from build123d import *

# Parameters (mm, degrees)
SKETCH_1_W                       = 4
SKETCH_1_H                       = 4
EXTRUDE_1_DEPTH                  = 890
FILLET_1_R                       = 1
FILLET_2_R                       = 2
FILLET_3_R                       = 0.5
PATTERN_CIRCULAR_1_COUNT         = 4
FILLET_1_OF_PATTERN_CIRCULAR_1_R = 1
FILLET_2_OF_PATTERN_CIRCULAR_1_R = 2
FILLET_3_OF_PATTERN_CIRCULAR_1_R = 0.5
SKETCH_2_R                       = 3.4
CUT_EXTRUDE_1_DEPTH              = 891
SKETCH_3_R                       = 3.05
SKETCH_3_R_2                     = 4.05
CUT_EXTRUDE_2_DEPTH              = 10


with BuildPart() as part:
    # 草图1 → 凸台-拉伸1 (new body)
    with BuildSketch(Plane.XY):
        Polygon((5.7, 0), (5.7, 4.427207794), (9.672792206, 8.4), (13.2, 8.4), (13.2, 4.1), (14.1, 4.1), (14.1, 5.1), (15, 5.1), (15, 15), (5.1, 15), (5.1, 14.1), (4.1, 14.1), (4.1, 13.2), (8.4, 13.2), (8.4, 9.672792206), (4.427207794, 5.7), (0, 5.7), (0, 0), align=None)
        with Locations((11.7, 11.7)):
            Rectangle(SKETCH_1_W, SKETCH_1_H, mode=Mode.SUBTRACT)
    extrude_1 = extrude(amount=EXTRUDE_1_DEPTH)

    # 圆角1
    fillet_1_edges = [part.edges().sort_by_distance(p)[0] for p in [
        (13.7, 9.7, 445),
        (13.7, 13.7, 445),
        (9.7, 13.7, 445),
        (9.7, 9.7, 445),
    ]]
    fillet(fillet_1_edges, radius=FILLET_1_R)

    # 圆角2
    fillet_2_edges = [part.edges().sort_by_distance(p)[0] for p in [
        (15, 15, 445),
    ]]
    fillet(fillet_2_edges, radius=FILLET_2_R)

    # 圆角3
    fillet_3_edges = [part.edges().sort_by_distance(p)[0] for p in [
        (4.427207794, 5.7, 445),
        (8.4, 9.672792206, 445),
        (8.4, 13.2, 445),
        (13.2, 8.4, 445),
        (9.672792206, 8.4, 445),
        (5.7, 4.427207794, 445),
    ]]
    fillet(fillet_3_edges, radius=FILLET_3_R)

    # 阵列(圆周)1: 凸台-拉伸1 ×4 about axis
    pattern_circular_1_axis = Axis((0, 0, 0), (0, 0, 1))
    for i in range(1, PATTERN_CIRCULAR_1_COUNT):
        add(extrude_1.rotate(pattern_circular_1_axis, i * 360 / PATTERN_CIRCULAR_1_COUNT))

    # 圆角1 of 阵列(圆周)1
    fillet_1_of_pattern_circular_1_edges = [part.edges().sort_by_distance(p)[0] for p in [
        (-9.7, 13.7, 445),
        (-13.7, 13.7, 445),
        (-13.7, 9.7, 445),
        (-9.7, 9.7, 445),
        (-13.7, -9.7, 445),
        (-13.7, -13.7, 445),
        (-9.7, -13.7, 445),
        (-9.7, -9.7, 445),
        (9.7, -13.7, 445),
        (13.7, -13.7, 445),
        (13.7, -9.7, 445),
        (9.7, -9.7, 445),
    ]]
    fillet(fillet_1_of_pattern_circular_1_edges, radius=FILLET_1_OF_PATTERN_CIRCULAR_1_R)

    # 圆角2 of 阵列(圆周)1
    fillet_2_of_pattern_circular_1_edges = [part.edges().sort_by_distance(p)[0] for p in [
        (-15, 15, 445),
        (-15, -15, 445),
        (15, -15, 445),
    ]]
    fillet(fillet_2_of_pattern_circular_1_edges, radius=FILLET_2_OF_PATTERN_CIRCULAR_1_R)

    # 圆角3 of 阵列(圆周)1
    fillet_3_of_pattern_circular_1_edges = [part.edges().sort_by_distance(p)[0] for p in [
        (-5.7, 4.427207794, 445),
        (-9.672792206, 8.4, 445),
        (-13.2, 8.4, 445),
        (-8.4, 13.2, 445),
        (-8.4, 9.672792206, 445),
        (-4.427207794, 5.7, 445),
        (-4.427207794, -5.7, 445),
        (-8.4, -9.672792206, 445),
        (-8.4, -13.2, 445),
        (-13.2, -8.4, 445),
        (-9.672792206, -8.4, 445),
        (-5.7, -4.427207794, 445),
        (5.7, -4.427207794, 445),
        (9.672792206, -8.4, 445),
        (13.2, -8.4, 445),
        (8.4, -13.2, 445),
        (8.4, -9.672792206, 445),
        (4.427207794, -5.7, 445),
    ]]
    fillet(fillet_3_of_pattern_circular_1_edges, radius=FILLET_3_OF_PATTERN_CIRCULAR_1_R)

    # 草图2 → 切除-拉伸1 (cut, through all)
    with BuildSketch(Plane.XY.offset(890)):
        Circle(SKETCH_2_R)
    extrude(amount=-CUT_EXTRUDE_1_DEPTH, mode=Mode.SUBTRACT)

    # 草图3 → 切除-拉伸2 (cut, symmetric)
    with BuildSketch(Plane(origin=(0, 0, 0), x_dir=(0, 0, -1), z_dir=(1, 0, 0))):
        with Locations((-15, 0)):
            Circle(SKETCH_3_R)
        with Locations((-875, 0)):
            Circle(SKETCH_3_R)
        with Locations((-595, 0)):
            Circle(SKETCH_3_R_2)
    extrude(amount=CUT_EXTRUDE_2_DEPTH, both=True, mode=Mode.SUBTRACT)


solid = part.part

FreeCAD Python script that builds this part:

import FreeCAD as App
import Part
import Sketcher

V = App.Vector
Q = App.Units.Quantity


def edges_at(feature, points):
    """Names of the edges that pass closest to the given points."""
    edges = feature.Shape.Edges
    near = lambda p: min(range(len(edges)), key=lambda i: edges[i].distToShape(Part.Vertex(*p))[0])
    return sorted({f"Edge{near(p) + 1}" for p in points})


def add_polygon(sketch, points):
    """Adds a closed chain of lines whose ends are joined by coincident constraints."""
    first, n = sketch.GeometryCount, len(points)
    for a, b in zip(points, points[1:] + points[:1]):
        sketch.addGeometry(Part.LineSegment(App.Vector(*a, 0), App.Vector(*b, 0)), False)
    for i in range(n):
        sketch.addConstraint(Sketcher.Constraint("Coincident", first + i, 2, first + (i + 1) % n, 1))

doc = App.newDocument("Part")
body = doc.addObject("PartDesign::Body", "Body")

sketch1 = body.newObject("Sketcher::SketchObject", "Sketch")
sketch1.AttachmentSupport = (doc.getObject("XY_Plane"), [""])
sketch1.MapMode = "FlatFace"
add_polygon(sketch1, [(5.7, 0), (5.7, 4.427208), (9.672792, 8.4), (13.2, 8.4), (13.2, 4.1), (14.1, 4.1), (14.1, 5.1), (15, 5.1), (15, 15), (5.1, 15), (5.1, 14.1), (4.1, 14.1), (4.1, 13.2), (8.4, 13.2), (8.4, 9.672792), (4.427208, 5.7), (0, 5.7), (0, 0)])
add_polygon(sketch1, [(13.7, 9.7), (9.7, 9.7), (9.7, 13.7), (13.7, 13.7)])
sketch1.addConstraint(Sketcher.Constraint("Vertical", 0))
sketch1.addConstraint(Sketcher.Constraint("Horizontal", 2))
sketch1.addConstraint(Sketcher.Constraint("Vertical", 3))
sketch1.addConstraint(Sketcher.Constraint("Horizontal", 4))
sketch1.addConstraint(Sketcher.Constraint("Vertical", 5))
sketch1.addConstraint(Sketcher.Constraint("Horizontal", 6))
sketch1.addConstraint(Sketcher.Constraint("Vertical", 7))
sketch1.addConstraint(Sketcher.Constraint("Horizontal", 8))
sketch1.addConstraint(Sketcher.Constraint("Vertical", 9))
sketch1.addConstraint(Sketcher.Constraint("Horizontal", 10))
sketch1.addConstraint(Sketcher.Constraint("Vertical", 11))
sketch1.addConstraint(Sketcher.Constraint("Horizontal", 12))
sketch1.addConstraint(Sketcher.Constraint("Vertical", 13))
sketch1.addConstraint(Sketcher.Constraint("Horizontal", 15))
sketch1.addConstraint(Sketcher.Constraint("Vertical", 16))
sketch1.addConstraint(Sketcher.Constraint("Horizontal", 17))
sketch1.addConstraint(Sketcher.Constraint("Horizontal", 18))
sketch1.addConstraint(Sketcher.Constraint("Vertical", 19))
sketch1.addConstraint(Sketcher.Constraint("Horizontal", 20))
sketch1.addConstraint(Sketcher.Constraint("Vertical", 21))
sketch1.addConstraint(Sketcher.Constraint("Coincident", 16, 2, -1, 1))
sketch1.addConstraint(Sketcher.Constraint("Parallel", 1, 14))
sketch1.addConstraint(Sketcher.Constraint("Equal", 4, 6))
sketch1.addConstraint(Sketcher.Constraint("Equal", 15, 0))
sketch1.addConstraint(Sketcher.Constraint("Equal", 12, 3))
sketch1.addConstraint(Sketcher.Constraint("Equal", 10, 5))
sketch1.addConstraint(Sketcher.Constraint("Equal", 8, 7))
sketch1.addConstraint(Sketcher.Constraint("Equal", 6, 9))
sketch1.addConstraint(Sketcher.Constraint("Equal", 9, 11))
sketch1.addConstraint(Sketcher.Constraint("Equal", 2, 13))
sketch1.addConstraint(Sketcher.Constraint("Equal", 17, 16))
sketch1.addConstraint(Sketcher.Constraint("Equal", 20, 19))
sketch1.addConstraint(Sketcher.Constraint("DistanceX", 10, 2, 10, 1, Q("1 mm")))
sketch1.addConstraint(Sketcher.Constraint("DistanceX", 18, 2, 18, 1, Q("4 mm")))
sketch1.addConstraint(Sketcher.Constraint("Angle", 1, Q("45 deg")))
sketch1.addConstraint(Sketcher.Constraint("DistanceX", 4, 1, 4, 2, Q("0.9 mm")))
sketch1.addConstraint(Sketcher.Constraint("DistanceX", 8, 2, 8, 1, Q("9.9 mm")))
sketch1.addConstraint(Sketcher.Constraint("DistanceX", 12, 1, 12, 2, Q("4.3 mm")))
sketch1.addConstraint(Sketcher.Constraint("DistanceX", 17, 1, 17, 2, Q("5.7 mm")))
sketch1.addConstraint(Sketcher.Constraint("DistanceX", -1, 1, 6, 2, Q("15 mm")))
sketch1.addConstraint(Sketcher.Constraint("DistanceX", -1, 1, 18, 2, Q("9.7 mm")))
sketch1.addConstraint(Sketcher.Constraint("DistanceY", -1, 1, 18, 2, Q("9.7 mm")))
sketch1.addConstraint(Sketcher.Constraint("DistanceX", 2, 1, 2, 2, Q("3.527208 mm")))
pad1 = body.newObject("PartDesign::Pad", "Pad")
pad1.Profile = sketch1
pad1.Length = 890
doc.recompute()

fillet = body.newObject("PartDesign::Fillet", "Fillet")
fillet.Base = (pad1, edges_at(pad1, [
    (13.7, 9.7, 445),
    (13.7, 13.7, 445),
    (9.7, 13.7, 445),
    (9.7, 9.7, 445),
]))
fillet.Radius = 1
doc.recompute()

fillet2 = body.newObject("PartDesign::Fillet", "Fillet001")
fillet2.Base = (fillet, edges_at(fillet, [(15, 15, 445)]))
fillet2.Radius = 2
doc.recompute()

fillet3 = body.newObject("PartDesign::Fillet", "Fillet002")
fillet3.Base = (fillet2, edges_at(fillet2, [
    (4.427, 5.7, 445),
    (8.4, 9.673, 445),
    (8.4, 13.2, 445),
    (13.2, 8.4, 445),
    (9.673, 8.4, 445),
    (5.7, 4.427, 445),
]))
fillet3.Radius = 0.5
doc.recompute()

polarpattern = body.newObject("PartDesign::PolarPattern", "PolarPattern")
polarpattern.Originals = [pad1]
polarpattern.Axis = (doc.getObject("Z_Axis"), [""])
polarpattern.Angle = 360
polarpattern.Occurrences = 4
body.Tip = polarpattern
doc.recompute()

fillet4 = body.newObject("PartDesign::Fillet", "Fillet003")
fillet4.Base = (polarpattern, edges_at(polarpattern, [
    (-9.7, 13.7, 445),
    (-13.7, 13.7, 445),
    (-13.7, 9.7, 445),
    (-9.7, 9.7, 445),
    (-13.7, -9.7, 445),
    (-13.7, -13.7, 445),
    (-9.7, -13.7, 445),
    (-9.7, -9.7, 445),
    (9.7, -13.7, 445),
    (13.7, -13.7, 445),
    (13.7, -9.7, 445),
    (9.7, -9.7, 445),
]))
fillet4.Radius = 1
doc.recompute()

fillet5 = body.newObject("PartDesign::Fillet", "Fillet004")
fillet5.Base = (fillet4, edges_at(fillet4, [(-15, 15, 445), (-15, -15, 445), (15, -15, 445)]))
fillet5.Radius = 2
doc.recompute()

fillet6 = body.newObject("PartDesign::Fillet", "Fillet005")
fillet6.Base = (fillet5, edges_at(fillet5, [
    (-5.7, 4.427, 445),
    (-9.673, 8.4, 445),
    (-13.2, 8.4, 445),
    (-8.4, 13.2, 445),
    (-8.4, 9.673, 445),
    (-4.427, 5.7, 445),
    (-4.427, -5.7, 445),
    (-8.4, -9.673, 445),
    (-8.4, -13.2, 445),
    (-13.2, -8.4, 445),
    (-9.673, -8.4, 445),
    (-5.7, -4.427, 445),
    (5.7, -4.427, 445),
    (9.673, -8.4, 445),
    (13.2, -8.4, 445),
    (8.4, -13.2, 445),
    (8.4, -9.673, 445),
    (4.427, -5.7, 445),
]))
fillet6.Radius = 0.5

sketch2 = body.newObject("Sketcher::SketchObject", "Sketch001")
sketch2.AttachmentSupport = (doc.getObject("XY_Plane"), [""])
sketch2.MapMode = "FlatFace"
sketch2.AttachmentOffset = App.Placement(V(0, 0, 890), App.Rotation())
sketch2.addGeometry(Part.Circle(V(0, 0, 0), V(0, 0, 1), 3.4), False)
sketch2.addConstraint(Sketcher.Constraint("Coincident", 0, 3, -1, 1))
sketch2.addConstraint(Sketcher.Constraint("Diameter", 0, Q("6.8 mm")))
pocket1 = body.newObject("PartDesign::Pocket", "Pocket")
pocket1.Profile = sketch2
pocket1.Type = "ThroughAll"

sketch3 = body.newObject("Sketcher::SketchObject", "Sketch002")
sketch3.AttachmentSupport = (doc.getObject("YZ_Plane"), [""])
sketch3.MapMode = "FlatFace"
sketch3.addGeometry(Part.Circle(V(0, 15, 0), V(0, 0, 1), 3.05), False)
sketch3.addGeometry(Part.Circle(V(0, 875, 0), V(0, 0, 1), 3.05), False)
sketch3.addGeometry(Part.Circle(V(0, 595, 0), V(0, 0, 1), 4.05), False)
sketch3.addConstraint(Sketcher.Constraint("Equal", 0, 1))
sketch3.addConstraint(Sketcher.Constraint("PointOnObject", 0, 3, -2))
sketch3.addConstraint(Sketcher.Constraint("PointOnObject", 1, 3, -2))
sketch3.addConstraint(Sketcher.Constraint("PointOnObject", 2, 3, -2))
sketch3.addConstraint(Sketcher.Constraint("Diameter", 0, Q("6.1 mm")))
sketch3.addConstraint(Sketcher.Constraint("Diameter", 2, Q("8.1 mm")))
sketch3.addConstraint(Sketcher.Constraint("DistanceY", -1, 1, 0, 3, Q("15 mm")))
sketch3.addConstraint(Sketcher.Constraint("DistanceY", -1, 1, 1, 3, Q("875 mm")))
sketch3.addConstraint(Sketcher.Constraint("DistanceY", -1, 1, 2, 3, Q("595 mm")))
pocket2 = body.newObject("PartDesign::Pocket", "Pocket001")
pocket2.Profile = sketch3
pocket2.Length = 20
pocket2.Midplane = True

doc.recompute()
